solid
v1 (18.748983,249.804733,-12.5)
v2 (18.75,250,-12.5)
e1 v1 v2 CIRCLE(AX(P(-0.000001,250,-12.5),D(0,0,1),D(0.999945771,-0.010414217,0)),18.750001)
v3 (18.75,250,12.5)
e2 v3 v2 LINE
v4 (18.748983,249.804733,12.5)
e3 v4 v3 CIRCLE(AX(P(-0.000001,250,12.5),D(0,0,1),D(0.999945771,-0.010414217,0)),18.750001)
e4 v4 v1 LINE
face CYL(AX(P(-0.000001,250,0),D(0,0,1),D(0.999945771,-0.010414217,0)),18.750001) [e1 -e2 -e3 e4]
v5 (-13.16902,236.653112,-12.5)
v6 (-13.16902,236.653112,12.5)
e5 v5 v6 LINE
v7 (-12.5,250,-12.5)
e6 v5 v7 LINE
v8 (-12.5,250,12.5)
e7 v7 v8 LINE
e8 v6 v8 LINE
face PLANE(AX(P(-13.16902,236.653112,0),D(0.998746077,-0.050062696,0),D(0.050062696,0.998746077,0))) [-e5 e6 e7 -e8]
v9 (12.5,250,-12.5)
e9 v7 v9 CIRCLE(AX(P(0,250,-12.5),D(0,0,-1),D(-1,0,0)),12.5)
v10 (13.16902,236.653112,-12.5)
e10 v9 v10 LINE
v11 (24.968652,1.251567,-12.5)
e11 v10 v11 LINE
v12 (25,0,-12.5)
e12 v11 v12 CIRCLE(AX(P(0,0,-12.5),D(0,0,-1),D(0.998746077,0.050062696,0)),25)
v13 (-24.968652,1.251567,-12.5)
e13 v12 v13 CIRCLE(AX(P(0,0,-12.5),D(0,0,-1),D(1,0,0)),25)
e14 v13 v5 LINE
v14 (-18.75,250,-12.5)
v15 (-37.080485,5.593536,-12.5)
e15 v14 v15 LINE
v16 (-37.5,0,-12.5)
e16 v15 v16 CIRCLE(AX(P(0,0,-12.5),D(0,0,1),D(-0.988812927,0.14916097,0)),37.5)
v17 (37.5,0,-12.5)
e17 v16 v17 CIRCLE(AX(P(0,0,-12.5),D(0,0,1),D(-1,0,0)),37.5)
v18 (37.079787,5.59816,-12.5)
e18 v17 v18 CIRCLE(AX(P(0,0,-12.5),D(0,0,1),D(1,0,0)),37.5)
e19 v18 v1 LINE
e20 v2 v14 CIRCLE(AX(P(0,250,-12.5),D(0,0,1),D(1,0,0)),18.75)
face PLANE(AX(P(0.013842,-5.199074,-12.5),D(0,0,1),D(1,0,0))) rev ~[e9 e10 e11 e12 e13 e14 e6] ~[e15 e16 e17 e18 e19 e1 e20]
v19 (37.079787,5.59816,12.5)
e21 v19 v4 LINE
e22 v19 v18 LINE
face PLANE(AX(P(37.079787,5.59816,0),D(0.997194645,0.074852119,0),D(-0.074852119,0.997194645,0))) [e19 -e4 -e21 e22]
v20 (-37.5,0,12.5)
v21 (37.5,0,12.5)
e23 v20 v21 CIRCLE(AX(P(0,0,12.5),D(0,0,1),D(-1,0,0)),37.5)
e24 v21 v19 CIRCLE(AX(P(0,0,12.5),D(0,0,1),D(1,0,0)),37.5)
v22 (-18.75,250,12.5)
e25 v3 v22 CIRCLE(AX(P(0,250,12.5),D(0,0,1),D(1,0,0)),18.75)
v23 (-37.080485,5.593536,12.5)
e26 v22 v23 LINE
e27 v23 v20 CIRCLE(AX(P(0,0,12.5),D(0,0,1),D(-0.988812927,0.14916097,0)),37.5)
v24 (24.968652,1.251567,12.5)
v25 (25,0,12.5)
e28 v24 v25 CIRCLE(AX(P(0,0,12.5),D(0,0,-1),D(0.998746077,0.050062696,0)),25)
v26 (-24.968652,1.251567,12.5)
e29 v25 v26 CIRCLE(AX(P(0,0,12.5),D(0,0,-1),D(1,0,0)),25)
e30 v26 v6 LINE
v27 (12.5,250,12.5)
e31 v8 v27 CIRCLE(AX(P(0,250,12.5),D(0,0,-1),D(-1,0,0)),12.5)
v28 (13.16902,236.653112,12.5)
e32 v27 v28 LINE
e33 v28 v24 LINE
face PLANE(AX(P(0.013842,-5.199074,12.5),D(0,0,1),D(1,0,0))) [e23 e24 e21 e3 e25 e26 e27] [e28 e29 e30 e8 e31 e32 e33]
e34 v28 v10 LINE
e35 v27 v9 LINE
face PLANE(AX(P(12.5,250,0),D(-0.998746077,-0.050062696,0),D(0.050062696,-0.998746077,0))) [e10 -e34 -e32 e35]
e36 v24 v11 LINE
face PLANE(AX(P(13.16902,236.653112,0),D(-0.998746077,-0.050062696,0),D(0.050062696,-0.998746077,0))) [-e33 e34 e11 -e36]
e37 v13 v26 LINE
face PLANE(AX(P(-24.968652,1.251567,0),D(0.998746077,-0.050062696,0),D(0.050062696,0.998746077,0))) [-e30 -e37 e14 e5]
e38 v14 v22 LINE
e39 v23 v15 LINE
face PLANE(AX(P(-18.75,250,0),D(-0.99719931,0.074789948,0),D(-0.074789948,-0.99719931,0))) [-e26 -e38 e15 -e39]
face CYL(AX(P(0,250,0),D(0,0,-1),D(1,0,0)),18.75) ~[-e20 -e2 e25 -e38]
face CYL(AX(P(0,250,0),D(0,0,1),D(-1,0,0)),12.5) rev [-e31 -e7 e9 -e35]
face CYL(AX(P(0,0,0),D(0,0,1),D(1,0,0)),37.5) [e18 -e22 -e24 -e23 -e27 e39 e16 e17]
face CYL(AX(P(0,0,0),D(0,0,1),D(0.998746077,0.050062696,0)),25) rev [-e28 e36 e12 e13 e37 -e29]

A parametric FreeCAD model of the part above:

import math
import FreeCAD as App
import Part
import Sketcher

V = App.Vector

doc = App.newDocument("Part")
body = doc.addObject("PartDesign::Body", "Body")

sketch1 = body.newObject("Sketcher::SketchObject", "Sketch")
sketch1.AttachmentSupport = (doc.getObject("XY_Plane"), [""])
sketch1.MapMode = "FlatFace"
sketch1.addGeometry(Part.LineSegment(V(-18.75, 250, 0), V(-37.080485, 5.593536, 0)), False)
sketch1.addGeometry(Part.ArcOfCircle(Part.Circle(V(0, 0, 0), V(0, 0, 1), 37.5), math.radians(171.421693), math.radians(180)), False)
sketch1.addGeometry(Part.ArcOfCircle(Part.Circle(V(0, 0, 0), V(0, 0, 1), 37.5), math.radians(180), math.radians(360)), False)
sketch1.addGeometry(Part.ArcOfCircle(Part.Circle(V(0, 0, 0), V(0, 0, 1), 37.5), math.radians(0), math.radians(8.585451)), False)
sketch1.addGeometry(Part.LineSegment(V(37.079787, 5.59816, 0), V(18.748983, 249.804733, 0)), False)
sketch1.addGeometry(Part.ArcOfCircle(Part.Circle(V(-0.000001, 250, 0), V(0, 0, 1), 18.750001), math.radians(-0.596701), math.radians(0)), False)
sketch1.addGeometry(Part.ArcOfCircle(Part.Circle(V(0, 250, 0), V(0, 0, 1), 18.75), math.radians(0), math.radians(180)), False)
sketch1.addGeometry(Part.ArcOfCircle(Part.Circle(V(0, 0, 0), V(0, 0, 1), 25), math.radians(0), math.radians(2.869581)), False)
sketch1.addGeometry(Part.ArcOfCircle(Part.Circle(V(0, 0, 0), V(0, 0, 1), 25), math.radians(177.130419), math.radians(360)), False)
sketch1.addGeometry(Part.LineSegment(V(-24.968652, 1.251567, 0), V(-13.16902, 236.653112, 0)), False)
sketch1.addGeometry(Part.LineSegment(V(-13.16902, 236.653112, 0), V(-12.5, 250, 0)), False)
sketch1.addGeometry(Part.ArcOfCircle(Part.Circle(V(0, 250, 0), V(0, 0, 1), 12.5), math.radians(0), math.radians(180)), False)
sketch1.addGeometry(Part.LineSegment(V(12.5, 250, 0), V(13.16902, 236.653112, 0)), False)
sketch1.addGeometry(Part.LineSegment(V(13.16902, 236.653112, 0), V(24.968652, 1.251567, 0)), False)
sketch1.addConstraint(Sketcher.Constraint("Coincident", 0, 2, 1, 1))
sketch1.addConstraint(Sketcher.Constraint("Tangent", 1, 2, 2, 1))
sketch1.addConstraint(Sketcher.Constraint("Tangent", 2, 2, 3, 1))
sketch1.addConstraint(Sketcher.Constraint("Coincident", 3, 2, 4, 1))
sketch1.addConstraint(Sketcher.Constraint("Coincident", 4, 2, 5, 1))
sketch1.addConstraint(Sketcher.Constraint("Tangent", 5, 2, 6, 1))
sketch1.addConstraint(Sketcher.Constraint("Coincident", 6, 2, 0, 1))
sketch1.addConstraint(Sketcher.Constraint("Tangent", 7, 1, 8, 2))
sketch1.addConstraint(Sketcher.Constraint("Tangent", 8, 1, 9, 1))
sketch1.addConstraint(Sketcher.Constraint("Coincident", 9, 2, 10, 1))
sketch1.addConstraint(Sketcher.Constraint("Coincident", 10, 2, 11, 2))
sketch1.addConstraint(Sketcher.Constraint("Coincident", 11, 1, 12, 1))
sketch1.addConstraint(Sketcher.Constraint("Coincident", 12, 2, 13, 1))
sketch1.addConstraint(Sketcher.Constraint("Tangent", 13, 2, 7, 2))
sketch1.addConstraint(Sketcher.Constraint("Coincident", 1, 3, -1, 1))
sketch1.addConstraint(Sketcher.Constraint("Coincident", 7, 3, -1, 1))
sketch1.addConstraint(Sketcher.Constraint("Coincident", 11, 3, 5, 3))
sketch1.addConstraint(Sketcher.Constraint("Equal", 1, 2))
sketch1.addConstraint(Sketcher.Constraint("Equal", 2, 3))
sketch1.addConstraint(Sketcher.Constraint("Equal", 5, 6))
sketch1.addConstraint(Sketcher.Constraint("Equal", 7, 8))
sketch1.addConstraint(Sketcher.Constraint("Symmetric", 5, 2, 6, 2, -2))
sketch1.addConstraint(Sketcher.Constraint("Symmetric", 9, 2, 12, 2, -2))
sketch1.addConstraint(Sketcher.Constraint("PointOnObject", 1, 2, -1))
sketch1.addConstraint(Sketcher.Constraint("PointOnObject", 2, 2, -1))
sketch1.addConstraint(Sketcher.Constraint("PointOnObject", 7, 1, -1))
sketch1.addConstraint(Sketcher.Constraint("Parallel", 9, 10))
sketch1.addConstraint(Sketcher.Constraint("Parallel", 12, 13))
sketch1.addConstraint(Sketcher.Constraint("Horizontal", 11, 3, 5, 2))
sketch1.addConstraint(Sketcher.Constraint("Horizontal", 6, 2, 10, 2))
sketch1.addConstraint(Sketcher.Constraint("Radius", 7, 25.0))
sketch1.addConstraint(Sketcher.Constraint("Radius", 1, 37.5))
sketch1.addConstraint(Sketcher.Constraint("Radius", 11, 12.5))
sketch1.addConstraint(Sketcher.Constraint("Radius", 5, 18.750001))
sketch1.addConstraint(Sketcher.Constraint("DistanceY", -1, 1, 5, 3, 250.0))
sketch1.addConstraint(Sketcher.Constraint("Distance", 9, 235.697091))
sketch1.addConstraint(Sketcher.Constraint("DistanceY", -1, 1, 3, 2, 5.59816))
sketch1.addConstraint(Sketcher.Constraint("DistanceY", 8, 1, 0, 2, 4.341969))
sketch1.addConstraint(Sketcher.Constraint("DistanceY", 9, 2, 4, 2, 13.151621))
pad1 = body.newObject("PartDesign::Pad", "Pad")
pad1.Profile = sketch1
pad1.Length = 25
pad1.Midplane = True

doc.recompute()
